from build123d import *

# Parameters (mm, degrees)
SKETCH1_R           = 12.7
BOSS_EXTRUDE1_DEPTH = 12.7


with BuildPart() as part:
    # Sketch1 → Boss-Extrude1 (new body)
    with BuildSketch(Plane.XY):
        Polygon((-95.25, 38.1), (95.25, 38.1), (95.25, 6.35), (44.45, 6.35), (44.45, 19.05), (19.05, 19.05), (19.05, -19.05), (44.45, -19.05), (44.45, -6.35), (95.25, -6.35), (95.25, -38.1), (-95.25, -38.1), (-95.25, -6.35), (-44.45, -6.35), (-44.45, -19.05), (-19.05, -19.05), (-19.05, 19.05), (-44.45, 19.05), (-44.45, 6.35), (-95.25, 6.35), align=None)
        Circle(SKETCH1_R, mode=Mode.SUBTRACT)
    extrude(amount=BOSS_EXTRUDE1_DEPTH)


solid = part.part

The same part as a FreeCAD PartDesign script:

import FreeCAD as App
import Part
import Sketcher

V = App.Vector
Q = App.Units.Quantity


def add_polygon(sketch, points):
    """Adds a closed chain of lines whose ends are joined by coincident constraints."""
    first, n = sketch.GeometryCount, len(points)
    for a, b in zip(points, points[1:] + points[:1]):
        sketch.addGeometry(Part.LineSegment(App.Vector(*a, 0), App.Vector(*b, 0)), False)
    for i in range(n):
        sketch.addConstraint(Sketcher.Constraint("Coincident", first + i, 2, first + (i + 1) % n, 1))

doc = App.newDocument("Part")
body = doc.addObject("PartDesign::Body", "Body")

sketch1 = body.newObject("Sketcher::SketchObject", "Sketch")
sketch1.AttachmentSupport = (doc.getObject("XY_Plane"), [""])
sketch1.MapMode = "FlatFace"
add_polygon(sketch1, [(95, 38), (-95, 38), (-95, 6), (-44, 6), (-44, 19), (-19, 19), (-19, -19), (-44, -19), (-44, -6), (-95, -6), (-95, -38), (95, -38), (95, -6), (44, -6), (44, -19), (19, -19), (19, 19), (44, 19), (44, 6), (95, 6)])
sketch1.addGeometry(Part.Circle(V(0, 0, 0), V(0, 0, 1), 13), False)
sketch1.addConstraint(Sketcher.Constraint("Horizontal", 0))
sketch1.addConstraint(Sketcher.Constraint("Vertical", 1))
sketch1.addConstraint(Sketcher.Constraint("Horizontal", 2))
sketch1.addConstraint(Sketcher.Constraint("Vertical", 3))
sketch1.addConstraint(Sketcher.Constraint("Horizontal", 4))
sketch1.addConstraint(Sketcher.Constraint("Vertical", 5))
sketch1.addConstraint(Sketcher.Constraint("Horizontal", 6))
sketch1.addConstraint(Sketcher.Constraint("Vertical", 7))
sketch1.addConstraint(Sketcher.Constraint("Horizontal", 8))
sketch1.addConstraint(Sketcher.Constraint("Vertical", 9))
sketch1.addConstraint(Sketcher.Constraint("Horizontal", 10))
sketch1.addConstraint(Sketcher.Constraint("Vertical", 11))
sketch1.addConstraint(Sketcher.Constraint("Horizontal", 12))
sketch1.addConstraint(Sketcher.Constraint("Vertical", 13))
sketch1.addConstraint(Sketcher.Constraint("Horizontal", 14))
sketch1.addConstraint(Sketcher.Constraint("Vertical", 15))
sketch1.addConstraint(Sketcher.Constraint("Horizontal", 16))
sketch1.addConstraint(Sketcher.Constraint("Vertical", 17))
sketch1.addConstraint(Sketcher.Constraint("Horizontal", 18))
sketch1.addConstraint(Sketcher.Constraint("Vertical", 19))
sketch1.addConstraint(Sketcher.Constraint("Coincident", 20, 3, -1, 1))
sketch1.addConstraint(Sketcher.Constraint("Symmetric", 0, 2, 10, 2, -1, 1))
sketch1.addConstraint(Sketcher.Constraint("Symmetric", 2, 2, 12, 2, -1, 1))
sketch1.addConstraint(Sketcher.Constraint("Symmetric", 4, 2, 14, 2, -1, 1))
sketch1.addConstraint(Sketcher.Constraint("Symmetric", 6, 2, 16, 2, -1, 1))
sketch1.addConstraint(Sketcher.Constraint("Symmetric", 8, 2, 18, 2, -1, 1))
sketch1.addConstraint(Sketcher.Constraint("Symmetric", 8, 2, 11, 2, -2))
sketch1.addConstraint(Sketcher.Constraint("Symmetric", 6, 2, 13, 2, -2))
sketch1.addConstraint(Sketcher.Constraint("Diameter", 20, Q("1 in")))
sketch1.addConstraint(Sketcher.Constraint("DistanceX", 2, 1, 2, 2, Q("2 in")))
sketch1.addConstraint(Sketcher.Constraint("DistanceX", 4, 1, 4, 2, Q("1 in")))
sketch1.addConstraint(Sketcher.Constraint("DistanceX", 0, 2, 0, 1, Q("7.5 in")))
sketch1.addConstraint(Sketcher.Constraint("DistanceY", 3, 1, 3, 2, Q("0.5 in")))
sketch1.addConstraint(Sketcher.Constraint("DistanceY", 5, 2, 5, 1, Q("1.5 in")))
sketch1.addConstraint(Sketcher.Constraint("DistanceY", 1, 2, 1, 1, Q("1.25 in")))
pad1 = body.newObject("PartDesign::Pad", "Pad")
pad1.Profile = sketch1
pad1.Length = Q("0.5 in")

doc.recompute()
